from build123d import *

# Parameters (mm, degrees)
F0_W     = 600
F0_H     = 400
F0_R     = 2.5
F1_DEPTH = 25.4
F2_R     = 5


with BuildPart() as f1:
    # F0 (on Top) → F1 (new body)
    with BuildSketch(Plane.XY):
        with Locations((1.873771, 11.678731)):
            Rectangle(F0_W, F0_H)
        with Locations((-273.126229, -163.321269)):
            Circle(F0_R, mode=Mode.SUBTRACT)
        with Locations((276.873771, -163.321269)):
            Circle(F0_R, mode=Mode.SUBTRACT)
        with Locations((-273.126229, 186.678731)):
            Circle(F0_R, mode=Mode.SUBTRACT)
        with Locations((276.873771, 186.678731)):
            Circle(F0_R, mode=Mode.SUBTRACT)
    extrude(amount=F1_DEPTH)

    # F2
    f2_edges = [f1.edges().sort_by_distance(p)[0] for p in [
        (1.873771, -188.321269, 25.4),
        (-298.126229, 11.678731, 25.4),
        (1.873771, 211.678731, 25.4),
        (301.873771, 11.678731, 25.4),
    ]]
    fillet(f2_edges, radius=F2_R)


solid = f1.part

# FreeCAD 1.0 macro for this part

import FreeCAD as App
import Part
import Sketcher

V = App.Vector
Q = App.Units.Quantity


def edges_at(feature, points):
    """Names of the edges that pass closest to the given points."""
    edges = feature.Shape.Edges
    near = lambda p: min(range(len(edges)), key=lambda i: edges[i].distToShape(Part.Vertex(*p))[0])
    return sorted({f"Edge{near(p) + 1}" for p in points})

doc = App.newDocument("Part")
params = doc.addObject("Spreadsheet::Sheet", "Params")
for row, (alias, value) in enumerate([
    ("sketch1_diameter", "5 mm"),
    ("sketch1_width", "600 mm"),
    ("sketch1_height", "400 mm"),
    ("pad1_length", "25.4 mm"),
    ("fillet_radius", "5 mm"),
], start=1):
    params.set(f"A{row}", alias)
    params.set(f"B{row}", "=" + value)
    params.setAlias(f"B{row}", alias)

body = doc.addObject("PartDesign::Body", "Body")

sketch1 = body.newObject("Sketcher::SketchObject", "Sketch")
sketch1.AttachmentSupport = (doc.getObject("XY_Plane"), [""])
sketch1.MapMode = "FlatFace"
sketch1.addGeometry(Part.LineSegment(V(-298.1, 211.7, 0), V(-298.1, -188.3, 0)), False)
sketch1.addGeometry(Part.LineSegment(V(-298.1, -188.3, 0), V(301.9, -188.3, 0)), False)
sketch1.addGeometry(Part.LineSegment(V(301.9, -188.3, 0), V(301.9, 211.7, 0)), False)
sketch1.addGeometry(Part.LineSegment(V(301.9, 211.7, 0), V(-298.1, 211.7, 0)), False)
sketch1.addGeometry(Part.Circle(V(-273.1, -163.3, 0), V(0, 0, 1), 2.5), False)
sketch1.addGeometry(Part.Circle(V(276.9, -163.3, 0), V(0, 0, 1), 2.5), False)
sketch1.addGeometry(Part.Circle(V(-273.1, 186.7, 0), V(0, 0, 1), 2.5), False)
sketch1.addGeometry(Part.Circle(V(276.9, 186.7, 0), V(0, 0, 1), 2.5), False)
sketch1.addConstraint(Sketcher.Constraint("Coincident", 0, 2, 1, 1))
sketch1.addConstraint(Sketcher.Constraint("Coincident", 1, 2, 2, 1))
sketch1.addConstraint(Sketcher.Constraint("Coincident", 2, 2, 3, 1))
sketch1.addConstraint(Sketcher.Constraint("Coincident", 3, 2, 0, 1))
sketch1.addConstraint(Sketcher.Constraint("Vertical", 0))
sketch1.addConstraint(Sketcher.Constraint("Horizontal", 1))
sketch1.addConstraint(Sketcher.Constraint("Vertical", 2))
sketch1.addConstraint(Sketcher.Constraint("Horizontal", 3))
sketch1.addConstraint(Sketcher.Constraint("Equal", 4, 5))
sketch1.addConstraint(Sketcher.Constraint("Equal", 5, 6))
sketch1.addConstraint(Sketcher.Constraint("Equal", 6, 7))
sketch1.addConstraint(Sketcher.Constraint("Horizontal", 4, 3, 5, 3))
sketch1.addConstraint(Sketcher.Constraint("Horizontal", 6, 3, 7, 3))
sketch1.addConstraint(Sketcher.Constraint("Vertical", 4, 3, 6, 3))
sketch1.addConstraint(Sketcher.Constraint("Vertical", 5, 3, 7, 3))
sketch1.addConstraint(Sketcher.Constraint("Diameter", 4, Q("5 mm")))
sketch1.addConstraint(Sketcher.Constraint("DistanceX", 1, 1, 1, 2, Q("600 mm")))
sketch1.addConstraint(Sketcher.Constraint("DistanceY", 0, 2, 0, 1, Q("400 mm")))
sketch1.addConstraint(Sketcher.Constraint("DistanceX", 4, 3, 5, 3, Q("550 mm")))
sketch1.addConstraint(Sketcher.Constraint("DistanceY", 4, 3, 6, 3, Q("350 mm")))
sketch1.addConstraint(Sketcher.Constraint("DistanceX", 0, 2, 4, 3, Q("25 mm")))
sketch1.addConstraint(Sketcher.Constraint("DistanceY", 0, 2, 4, 3, Q("25 mm")))
sketch1.addConstraint(Sketcher.Constraint("DistanceX", 4, 3, -1, 1, Q("273.126229 mm")))
sketch1.addConstraint(Sketcher.Constraint("DistanceY", 4, 3, -1, 1, Q("163.321269 mm")))
sketch1.setExpression("Constraints[15]", "Params.sketch1_diameter")
sketch1.setExpression("Constraints[16]", "Params.sketch1_width")
sketch1.setExpression("Constraints[17]", "Params.sketch1_height")
pad1 = body.newObject("PartDesign::Pad", "Pad")
pad1.Profile = sketch1
pad1.setExpression("Length", "Params.pad1_length")
doc.recompute()

fillet = body.newObject("PartDesign::Fillet", "Fillet")
fillet.Base = (pad1, edges_at(pad1, [
    (1.874, -188.321, 25.4),
    (-298.126, 11.679, 25.4),
    (1.874, 211.679, 25.4),
    (301.874, 11.679, 25.4),
]))
fillet.setExpression("Radius", "Params.fillet_radius")

doc.recompute()
